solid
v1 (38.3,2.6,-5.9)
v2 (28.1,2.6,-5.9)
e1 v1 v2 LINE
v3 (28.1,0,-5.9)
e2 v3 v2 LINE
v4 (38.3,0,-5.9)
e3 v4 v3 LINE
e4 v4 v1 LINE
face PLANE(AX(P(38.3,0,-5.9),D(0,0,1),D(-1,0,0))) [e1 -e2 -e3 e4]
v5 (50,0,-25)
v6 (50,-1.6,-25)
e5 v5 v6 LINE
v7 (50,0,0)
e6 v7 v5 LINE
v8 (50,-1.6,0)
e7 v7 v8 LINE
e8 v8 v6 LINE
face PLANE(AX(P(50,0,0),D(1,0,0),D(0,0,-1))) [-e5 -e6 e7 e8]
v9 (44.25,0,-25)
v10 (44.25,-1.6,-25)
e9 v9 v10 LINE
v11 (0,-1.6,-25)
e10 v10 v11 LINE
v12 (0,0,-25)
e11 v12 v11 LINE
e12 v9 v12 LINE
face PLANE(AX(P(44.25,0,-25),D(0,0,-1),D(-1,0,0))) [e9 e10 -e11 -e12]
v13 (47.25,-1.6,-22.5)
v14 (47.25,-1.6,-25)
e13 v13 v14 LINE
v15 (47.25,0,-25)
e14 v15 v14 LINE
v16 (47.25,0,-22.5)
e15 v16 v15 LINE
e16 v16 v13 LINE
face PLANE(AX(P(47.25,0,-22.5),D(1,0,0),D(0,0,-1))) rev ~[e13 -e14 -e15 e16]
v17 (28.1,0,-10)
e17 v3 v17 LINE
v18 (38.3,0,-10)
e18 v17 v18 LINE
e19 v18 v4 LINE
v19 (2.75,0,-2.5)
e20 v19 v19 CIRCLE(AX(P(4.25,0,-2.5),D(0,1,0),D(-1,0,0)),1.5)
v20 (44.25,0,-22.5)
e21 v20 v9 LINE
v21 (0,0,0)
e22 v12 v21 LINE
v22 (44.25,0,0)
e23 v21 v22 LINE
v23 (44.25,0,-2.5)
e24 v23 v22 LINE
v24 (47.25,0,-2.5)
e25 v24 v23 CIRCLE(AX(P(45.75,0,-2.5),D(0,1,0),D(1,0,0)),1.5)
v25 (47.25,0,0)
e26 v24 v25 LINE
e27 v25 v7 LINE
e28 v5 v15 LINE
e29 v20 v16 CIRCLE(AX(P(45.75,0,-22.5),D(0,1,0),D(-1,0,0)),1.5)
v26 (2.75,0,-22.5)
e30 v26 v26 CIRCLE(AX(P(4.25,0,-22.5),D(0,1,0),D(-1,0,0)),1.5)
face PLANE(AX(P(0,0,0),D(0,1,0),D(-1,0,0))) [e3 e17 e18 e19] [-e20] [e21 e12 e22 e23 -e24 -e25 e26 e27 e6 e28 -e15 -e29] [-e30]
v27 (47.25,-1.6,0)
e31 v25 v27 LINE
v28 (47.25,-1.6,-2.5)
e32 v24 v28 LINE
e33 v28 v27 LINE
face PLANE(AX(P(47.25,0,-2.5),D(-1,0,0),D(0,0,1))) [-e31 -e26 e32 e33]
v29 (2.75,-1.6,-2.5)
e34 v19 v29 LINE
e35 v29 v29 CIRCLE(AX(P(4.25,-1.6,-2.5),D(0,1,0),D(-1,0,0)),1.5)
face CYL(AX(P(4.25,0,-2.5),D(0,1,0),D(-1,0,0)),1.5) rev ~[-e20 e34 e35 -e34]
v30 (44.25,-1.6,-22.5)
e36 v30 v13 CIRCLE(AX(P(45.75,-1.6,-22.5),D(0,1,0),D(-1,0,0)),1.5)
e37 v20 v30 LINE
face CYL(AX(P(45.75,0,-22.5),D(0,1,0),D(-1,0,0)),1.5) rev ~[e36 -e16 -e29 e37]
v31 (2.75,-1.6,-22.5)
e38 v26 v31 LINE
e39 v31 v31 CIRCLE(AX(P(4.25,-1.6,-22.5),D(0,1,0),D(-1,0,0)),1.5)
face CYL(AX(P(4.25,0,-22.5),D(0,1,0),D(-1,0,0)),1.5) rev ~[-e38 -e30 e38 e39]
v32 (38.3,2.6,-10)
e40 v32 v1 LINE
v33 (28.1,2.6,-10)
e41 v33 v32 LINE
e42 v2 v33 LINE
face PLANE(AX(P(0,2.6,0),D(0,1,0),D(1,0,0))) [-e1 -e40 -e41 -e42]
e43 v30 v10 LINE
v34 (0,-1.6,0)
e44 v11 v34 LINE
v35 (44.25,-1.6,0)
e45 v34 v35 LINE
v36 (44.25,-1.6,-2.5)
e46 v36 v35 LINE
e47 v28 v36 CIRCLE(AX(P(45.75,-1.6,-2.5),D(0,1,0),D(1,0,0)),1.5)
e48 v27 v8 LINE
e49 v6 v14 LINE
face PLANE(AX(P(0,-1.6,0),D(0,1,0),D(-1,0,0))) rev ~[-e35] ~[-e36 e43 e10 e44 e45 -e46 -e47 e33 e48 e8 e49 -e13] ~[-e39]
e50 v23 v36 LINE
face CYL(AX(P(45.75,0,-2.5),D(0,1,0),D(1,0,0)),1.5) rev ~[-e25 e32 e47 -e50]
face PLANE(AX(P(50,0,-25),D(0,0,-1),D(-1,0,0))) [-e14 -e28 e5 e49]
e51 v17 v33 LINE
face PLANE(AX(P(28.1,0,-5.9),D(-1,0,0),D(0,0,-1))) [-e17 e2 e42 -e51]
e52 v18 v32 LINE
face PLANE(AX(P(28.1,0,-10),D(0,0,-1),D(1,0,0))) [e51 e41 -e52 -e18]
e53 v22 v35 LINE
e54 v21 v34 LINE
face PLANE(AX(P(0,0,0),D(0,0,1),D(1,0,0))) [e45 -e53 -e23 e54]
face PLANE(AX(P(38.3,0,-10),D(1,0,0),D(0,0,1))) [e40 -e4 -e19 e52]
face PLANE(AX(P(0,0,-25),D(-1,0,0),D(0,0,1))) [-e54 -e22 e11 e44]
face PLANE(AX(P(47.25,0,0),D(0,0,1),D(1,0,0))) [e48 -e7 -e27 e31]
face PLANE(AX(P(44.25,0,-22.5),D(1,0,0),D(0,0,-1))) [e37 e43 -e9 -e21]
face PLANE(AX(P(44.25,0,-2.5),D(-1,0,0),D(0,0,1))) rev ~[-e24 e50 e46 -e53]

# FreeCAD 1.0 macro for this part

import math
import FreeCAD as App
import Part
import Sketcher
from FreeCAD import Vector


def add_polygon(sketch, points):
    """Adds a closed chain of lines whose ends are joined by coincident constraints."""
    first, n = sketch.GeometryCount, len(points)
    for a, b in zip(points, points[1:] + points[:1]):
        sketch.addGeometry(Part.LineSegment(App.Vector(*a, 0), App.Vector(*b, 0)), False)
    for i in range(n):
        sketch.addConstraint(Sketcher.Constraint("Coincident", first + i, 2, first + (i + 1) % n, 1))

doc = App.newDocument("Part")
body = doc.addObject("PartDesign::Body", "Body")

# Sketch on XZ plane
sketch1 = body.newObject("Sketcher::SketchObject", "Sketch")
sketch1.AttachmentSupport = (doc.getObject("XZ_Plane"), [""])
sketch1.MapMode = "FlatFace"
sketch1.addGeometry(Part.LineSegment(Vector(47.2, 0, 0), Vector(50, 0, 0)), False)
sketch1.addGeometry(Part.LineSegment(Vector(50, 0, 0), Vector(50, -25, 0)), False)
sketch1.addGeometry(Part.LineSegment(Vector(50, -25, 0), Vector(47.2, -25, 0)), False)
sketch1.addGeometry(Part.LineSegment(Vector(47.2, -25, 0), Vector(47.2, -22.5, 0)), False)
sketch1.addGeometry(Part.ArcOfCircle(Part.Circle(Vector(45.8, -22.5, 0), Vector(0, 0, 1), 1.5), math.radians(0), math.radians(180)), False)
sketch1.addGeometry(Part.LineSegment(Vector(44.2, -22.5, 0), Vector(44.2, -25, 0)), False)
sketch1.addGeometry(Part.LineSegment(Vector(44.2, -25, 0), Vector(0, -25, 0)), False)
sketch1.addGeometry(Part.LineSegment(Vector(0, -25, 0), Vector(0, 0, 0)), False)
sketch1.addGeometry(Part.LineSegment(Vector(0, 0, 0), Vector(44.2, 0, 0)), False)
sketch1.addGeometry(Part.LineSegment(Vector(44.2, 0, 0), Vector(44.2, -2.5, 0)), False)
sketch1.addGeometry(Part.ArcOfCircle(Part.Circle(Vector(45.8, -2.5, 0), Vector(0, 0, 1), 1.5), math.radians(180), math.radians(360)), False)
sketch1.addGeometry(Part.LineSegment(Vector(47.2, -2.5, 0), Vector(47.2, 0, 0)), False)
sketch1.addGeometry(Part.Circle(Vector(4.2, -22.5, 0), Vector(0, 0, 1), 1.5), False)
sketch1.addGeometry(Part.Circle(Vector(4.2, -2.5, 0), Vector(0, 0, 1), 1.5), False)
sketch1.addConstraint(Sketcher.Constraint("Coincident", 0, 2, 1, 1))
sketch1.addConstraint(Sketcher.Constraint("Coincident", 1, 2, 2, 1))
sketch1.addConstraint(Sketcher.Constraint("Coincident", 2, 2, 3, 1))
sketch1.addConstraint(Sketcher.Constraint("Tangent", 3, 2, 4, 1))
sketch1.addConstraint(Sketcher.Constraint("Tangent", 4, 2, 5, 1))
sketch1.addConstraint(Sketcher.Constraint("Coincident", 5, 2, 6, 1))
sketch1.addConstraint(Sketcher.Constraint("Coincident", 6, 2, 7, 1))
sketch1.addConstraint(Sketcher.Constraint("Coincident", 7, 2, 8, 1))
sketch1.addConstraint(Sketcher.Constraint("Coincident", 8, 2, 9, 1))
sketch1.addConstraint(Sketcher.Constraint("Tangent", 9, 2, 10, 1))
sketch1.addConstraint(Sketcher.Constraint("Tangent", 10, 2, 11, 1))
sketch1.addConstraint(Sketcher.Constraint("Coincident", 11, 2, 0, 1))
sketch1.addConstraint(Sketcher.Constraint("Horizontal", 0))
sketch1.addConstraint(Sketcher.Constraint("Vertical", 1))
sketch1.addConstraint(Sketcher.Constraint("Horizontal", 2))
sketch1.addConstraint(Sketcher.Constraint("Vertical", 3))
sketch1.addConstraint(Sketcher.Constraint("Vertical", 5))
sketch1.addConstraint(Sketcher.Constraint("Horizontal", 6))
sketch1.addConstraint(Sketcher.Constraint("Vertical", 7))
sketch1.addConstraint(Sketcher.Constraint("Horizontal", 8))
sketch1.addConstraint(Sketcher.Constraint("Vertical", 9))
sketch1.addConstraint(Sketcher.Constraint("Vertical", 11))
sketch1.addConstraint(Sketcher.Constraint("Coincident", 7, 2, -1, 1))
sketch1.addConstraint(Sketcher.Constraint("Equal", 4, 10))
sketch1.addConstraint(Sketcher.Constraint("Equal", 10, 12))
sketch1.addConstraint(Sketcher.Constraint("Equal", 12, 13))
sketch1.addConstraint(Sketcher.Constraint("PointOnObject", 0, 2, -1))
sketch1.addConstraint(Sketcher.Constraint("Horizontal", 4, 3, 12, 3))
sketch1.addConstraint(Sketcher.Constraint("Horizontal", 10, 3, 13, 3))
sketch1.addConstraint(Sketcher.Constraint("Horizontal", 2, 2, 5, 2))
sketch1.addConstraint(Sketcher.Constraint("Vertical", 4, 3, 10, 3))
sketch1.addConstraint(Sketcher.Constraint("Vertical", 12, 3, 13, 3))
sketch1.addConstraint(Sketcher.Constraint("Equal", 5, 9))
sketch1.addConstraint(Sketcher.Constraint("Diameter", 12, 3.0))
sketch1.addConstraint(Sketcher.Constraint("DistanceY", 1, 2, 1, 1, 25.0))
sketch1.addConstraint(Sketcher.Constraint("DistanceX", -1, 1, 0, 2, 50.0))
sketch1.addConstraint(Sketcher.Constraint("DistanceY", 4, 3, 10, 3, 20.0))
sketch1.addConstraint(Sketcher.Constraint("DistanceX", 12, 3, 4, 3, 41.5))
sketch1.addConstraint(Sketcher.Constraint("DistanceX", 0, 1, 0, 2, 2.75))
pad1 = body.newObject("PartDesign::Pad", "Pad")
pad1.Profile = sketch1
pad1.Length = 1.6

# Sketch on XZ plane
sketch2 = body.newObject("Sketcher::SketchObject", "Sketch001")
sketch2.AttachmentSupport = (doc.getObject("XZ_Plane"), [""])
sketch2.MapMode = "FlatFace"
add_polygon(sketch2, [(28.1, -5.9), (38.3, -5.9), (38.3, -10), (28.1, -10)])  # lines 0-3
sketch2.addConstraint(Sketcher.Constraint("Horizontal", 0))
sketch2.addConstraint(Sketcher.Constraint("Vertical", 1))
sketch2.addConstraint(Sketcher.Constraint("Horizontal", 2))
sketch2.addConstraint(Sketcher.Constraint("Vertical", 3))
sketch2.addConstraint(Sketcher.Constraint("DistanceX", 0, 1, 0, 2, 10.2))
sketch2.addConstraint(Sketcher.Constraint("DistanceY", 1, 2, 1, 1, 4.1))
sketch2.addConstraint(Sketcher.Constraint("DistanceY", 0, 2, -1, 1, 5.9))
sketch2.addConstraint(Sketcher.Constraint("DistanceX", -1, 1, 0, 2, 38.3))
pad2 = body.newObject("PartDesign::Pad", "Pad001")
pad2.Profile = sketch2
pad2.Length = 2.6
pad2.Reversed = True

doc.recompute()
